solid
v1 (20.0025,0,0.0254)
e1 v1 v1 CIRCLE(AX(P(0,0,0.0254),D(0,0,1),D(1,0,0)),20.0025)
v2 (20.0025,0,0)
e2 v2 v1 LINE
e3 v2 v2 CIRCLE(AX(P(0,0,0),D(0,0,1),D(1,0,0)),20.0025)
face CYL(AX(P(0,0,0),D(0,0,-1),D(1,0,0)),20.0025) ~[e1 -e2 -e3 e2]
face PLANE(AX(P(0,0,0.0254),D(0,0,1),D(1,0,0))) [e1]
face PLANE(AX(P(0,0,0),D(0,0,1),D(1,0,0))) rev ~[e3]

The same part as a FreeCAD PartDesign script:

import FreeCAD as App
import Part
import Sketcher
Q = App.Units.Quantity

doc = App.newDocument("Part")
body = doc.addObject("PartDesign::Body", "Body")

# Sketch on XY plane
sketch1 = doc.addObject("Sketcher::SketchObject", "Sketch")
body.addObject(sketch1)
sketch1.AttachmentSupport = (doc.XY_Plane, [""])
sketch1.MapMode = "FlatFace"
sketch1.addGeometry(Part.Circle(App.Vector(0, 0, 0), App.Vector(0, 0, 1), 20), False)
sketch1.addConstraint(Sketcher.Constraint("Coincident", 0, 3, -1, 1))
sketch1.addConstraint(Sketcher.Constraint("Diameter", 0, Q("1.575 in")))
pad1 = doc.addObject("PartDesign::Pad", "Pad")
body.addObject(pad1)
pad1.Profile = sketch1
pad1.Length = Q("0.001 in")

doc.recompute()
